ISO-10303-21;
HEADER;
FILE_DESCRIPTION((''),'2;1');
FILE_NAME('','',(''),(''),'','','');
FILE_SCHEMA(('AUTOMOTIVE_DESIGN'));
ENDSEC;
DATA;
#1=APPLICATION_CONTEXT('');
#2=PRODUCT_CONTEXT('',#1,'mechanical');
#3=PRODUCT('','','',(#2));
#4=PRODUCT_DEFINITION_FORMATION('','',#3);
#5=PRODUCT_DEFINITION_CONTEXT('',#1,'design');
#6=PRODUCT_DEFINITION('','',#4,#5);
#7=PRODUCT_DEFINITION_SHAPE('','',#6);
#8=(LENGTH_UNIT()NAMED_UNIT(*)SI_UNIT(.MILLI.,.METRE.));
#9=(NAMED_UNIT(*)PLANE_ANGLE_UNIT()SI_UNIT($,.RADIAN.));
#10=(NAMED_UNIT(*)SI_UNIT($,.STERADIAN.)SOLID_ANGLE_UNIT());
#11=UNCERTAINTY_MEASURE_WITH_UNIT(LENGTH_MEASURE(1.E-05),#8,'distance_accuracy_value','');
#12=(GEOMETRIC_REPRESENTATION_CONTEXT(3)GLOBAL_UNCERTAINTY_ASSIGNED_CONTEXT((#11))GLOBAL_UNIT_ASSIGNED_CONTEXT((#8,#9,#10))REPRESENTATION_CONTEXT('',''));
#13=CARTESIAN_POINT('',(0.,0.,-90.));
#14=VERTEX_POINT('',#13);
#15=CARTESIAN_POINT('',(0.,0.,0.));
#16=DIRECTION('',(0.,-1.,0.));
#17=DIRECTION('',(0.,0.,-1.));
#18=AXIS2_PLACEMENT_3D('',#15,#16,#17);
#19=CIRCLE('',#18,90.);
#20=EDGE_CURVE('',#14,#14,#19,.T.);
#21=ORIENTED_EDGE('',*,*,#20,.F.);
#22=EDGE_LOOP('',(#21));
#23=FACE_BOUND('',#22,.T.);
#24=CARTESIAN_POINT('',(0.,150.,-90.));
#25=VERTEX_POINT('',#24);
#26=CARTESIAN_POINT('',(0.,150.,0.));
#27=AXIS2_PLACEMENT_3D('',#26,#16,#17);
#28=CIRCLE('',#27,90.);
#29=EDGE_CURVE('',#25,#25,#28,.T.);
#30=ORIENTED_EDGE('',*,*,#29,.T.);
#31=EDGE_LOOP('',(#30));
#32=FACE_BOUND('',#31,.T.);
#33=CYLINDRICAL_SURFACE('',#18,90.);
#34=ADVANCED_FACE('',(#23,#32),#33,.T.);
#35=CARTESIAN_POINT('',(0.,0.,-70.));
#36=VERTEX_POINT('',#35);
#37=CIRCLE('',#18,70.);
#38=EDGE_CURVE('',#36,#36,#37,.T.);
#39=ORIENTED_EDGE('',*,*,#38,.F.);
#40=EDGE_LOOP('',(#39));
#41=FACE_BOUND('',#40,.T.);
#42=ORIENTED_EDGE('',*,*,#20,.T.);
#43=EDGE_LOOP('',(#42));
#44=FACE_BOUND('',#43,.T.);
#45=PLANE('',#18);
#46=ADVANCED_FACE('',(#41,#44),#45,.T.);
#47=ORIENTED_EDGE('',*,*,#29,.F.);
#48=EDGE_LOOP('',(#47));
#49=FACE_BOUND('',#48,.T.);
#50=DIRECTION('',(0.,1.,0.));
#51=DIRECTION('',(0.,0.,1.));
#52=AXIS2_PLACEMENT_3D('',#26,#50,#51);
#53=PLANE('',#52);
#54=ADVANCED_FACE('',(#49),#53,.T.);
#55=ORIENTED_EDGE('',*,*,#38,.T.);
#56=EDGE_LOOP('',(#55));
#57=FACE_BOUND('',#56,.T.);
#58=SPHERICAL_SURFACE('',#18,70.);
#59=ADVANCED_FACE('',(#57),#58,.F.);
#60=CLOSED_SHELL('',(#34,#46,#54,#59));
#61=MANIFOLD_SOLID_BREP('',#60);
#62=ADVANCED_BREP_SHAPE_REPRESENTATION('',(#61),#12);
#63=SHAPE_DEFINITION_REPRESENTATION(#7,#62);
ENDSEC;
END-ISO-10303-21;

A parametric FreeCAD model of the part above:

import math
import FreeCAD as App
import Part
import Sketcher
from FreeCAD import Vector

doc = App.newDocument("Part")
params = doc.addObject("Spreadsheet::Sheet", "Params")
for row, (alias, value) in enumerate([
    ("sketch1_width", "90 mm"),
    ("sketch1_height", "150 mm"),
    ("revolution_angle", "360 deg"),
    ("sketch2_radius", "70 mm"),
    ("groove_angle", "360 deg"),
], start=1):
    params.set(f"A{row}", alias)
    params.set(f"B{row}", "=" + value)
    params.setAlias(f"B{row}", alias)

body = doc.addObject("PartDesign::Body", "Body")

sketch1 = body.newObject("Sketcher::SketchObject", "Sketch")
sketch1.AttachmentSupport = (doc.getObject("XY_Plane"), [""])
sketch1.MapMode = "FlatFace"
sketch1.addGeometry(Part.LineSegment(Vector(0, 150, 0), Vector(0, 0, 0)), False)
sketch1.addGeometry(Part.LineSegment(Vector(0, 0, 0), Vector(90, 0, 0)), False)
sketch1.addGeometry(Part.LineSegment(Vector(90, 0, 0), Vector(90, 150, 0)), False)
sketch1.addGeometry(Part.LineSegment(Vector(90, 150, 0), Vector(0, 150, 0)), False)
sketch1.addConstraint(Sketcher.Constraint("Coincident", 0, 2, 1, 1))
sketch1.addConstraint(Sketcher.Constraint("Coincident", 1, 2, 2, 1))
sketch1.addConstraint(Sketcher.Constraint("Coincident", 2, 2, 3, 1))
sketch1.addConstraint(Sketcher.Constraint("Coincident", 3, 2, 0, 1))
sketch1.addConstraint(Sketcher.Constraint("Vertical", 0))
sketch1.addConstraint(Sketcher.Constraint("Horizontal", 1))
sketch1.addConstraint(Sketcher.Constraint("Vertical", 2))
sketch1.addConstraint(Sketcher.Constraint("Horizontal", 3))
sketch1.addConstraint(Sketcher.Constraint("Coincident", 0, 2, -1, 1))
sketch1.addConstraint(Sketcher.Constraint("DistanceX", 1, 1, 1, 2, 90.0))
sketch1.addConstraint(Sketcher.Constraint("DistanceY", 0, 2, 0, 1, 150.0))
sketch1.setExpression("Constraints[9]", "Params.sketch1_width")
sketch1.setExpression("Constraints[10]", "Params.sketch1_height")
revolution = body.newObject("PartDesign::Revolution", "Revolution")
revolution.Profile = sketch1
revolution.ReferenceAxis = (sketch1, ["V_Axis"])
revolution.setExpression("Angle", "Params.revolution_angle")

sketch2 = body.newObject("Sketcher::SketchObject", "Sketch001")
sketch2.AttachmentSupport = (doc.getObject("YZ_Plane"), [""])
sketch2.MapMode = "FlatFace"
sketch2.addGeometry(Part.LineSegment(Vector(70, 0, 0), Vector(0, 0, 0)), False)
sketch2.addGeometry(Part.LineSegment(Vector(0, 0, 0), Vector(0, -70, 0)), False)
sketch2.addGeometry(Part.ArcOfCircle(Part.Circle(Vector(0, 0, 0), Vector(0, 0, 1), 70), math.radians(-90), math.radians(0)), False)
sketch2.addConstraint(Sketcher.Constraint("Coincident", 0, 2, 1, 1))
sketch2.addConstraint(Sketcher.Constraint("Coincident", 1, 2, 2, 1))
sketch2.addConstraint(Sketcher.Constraint("Coincident", 2, 2, 0, 1))
sketch2.addConstraint(Sketcher.Constraint("Horizontal", 0))
sketch2.addConstraint(Sketcher.Constraint("Vertical", 1))
sketch2.addConstraint(Sketcher.Constraint("Coincident", 2, 3, -1, 1))
sketch2.addConstraint(Sketcher.Constraint("Coincident", 0, 2, -1, 1))
sketch2.addConstraint(Sketcher.Constraint("Radius", 2, 70.0))
sketch2.setExpression("Constraints[7]", "Params.sketch2_radius")
groove = body.newObject("PartDesign::Groove", "Groove")
groove.Profile = sketch2
groove.ReferenceAxis = (sketch2, ["H_Axis"])
groove.setExpression("Angle", "Params.groove_angle")

doc.recompute()
